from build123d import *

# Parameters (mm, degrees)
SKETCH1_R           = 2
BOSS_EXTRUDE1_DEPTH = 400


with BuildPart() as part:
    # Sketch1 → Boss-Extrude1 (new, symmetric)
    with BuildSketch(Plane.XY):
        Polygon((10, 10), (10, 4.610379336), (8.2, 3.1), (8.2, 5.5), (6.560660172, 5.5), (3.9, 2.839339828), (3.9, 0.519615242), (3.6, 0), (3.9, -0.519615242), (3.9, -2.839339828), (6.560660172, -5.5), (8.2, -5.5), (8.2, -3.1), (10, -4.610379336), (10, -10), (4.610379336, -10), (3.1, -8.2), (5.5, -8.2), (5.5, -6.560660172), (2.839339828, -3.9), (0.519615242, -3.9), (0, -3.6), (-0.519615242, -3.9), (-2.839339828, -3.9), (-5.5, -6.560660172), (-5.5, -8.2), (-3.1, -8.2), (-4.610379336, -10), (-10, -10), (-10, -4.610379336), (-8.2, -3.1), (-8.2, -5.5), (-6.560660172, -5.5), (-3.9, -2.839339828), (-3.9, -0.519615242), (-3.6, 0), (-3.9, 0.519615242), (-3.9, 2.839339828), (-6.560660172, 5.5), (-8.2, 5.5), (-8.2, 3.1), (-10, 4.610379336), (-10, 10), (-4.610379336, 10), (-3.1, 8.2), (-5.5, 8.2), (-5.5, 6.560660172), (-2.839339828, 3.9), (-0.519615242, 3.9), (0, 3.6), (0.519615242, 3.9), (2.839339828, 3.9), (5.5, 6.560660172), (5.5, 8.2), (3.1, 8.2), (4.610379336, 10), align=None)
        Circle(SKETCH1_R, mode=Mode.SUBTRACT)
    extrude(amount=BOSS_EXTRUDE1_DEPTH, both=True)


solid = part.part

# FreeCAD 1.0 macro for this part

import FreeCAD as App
import Part
import Sketcher

V = App.Vector
Q = App.Units.Quantity

doc = App.newDocument("Part")
body = doc.addObject("PartDesign::Body", "Body")

# Sketch on XY plane
sketch1 = body.newObject("Sketcher::SketchObject", "Sketch")
sketch1.AttachmentSupport = (doc.getObject("XY_Plane"), [""])
sketch1.MapMode = "FlatFace"
sketch1.addGeometry([
    Part.LineSegment(V(10, 4.6, 0), V(10, 10, 0)),  # 0
    Part.LineSegment(V(10, 10, 0), V(4.6, 10, 0)),  # 1
    Part.LineSegment(V(4.6, 10, 0), V(3.1, 8.2, 0)),  # 2
    Part.LineSegment(V(3.1, 8.2, 0), V(5.5, 8.2, 0)),  # 3
    Part.LineSegment(V(5.5, 8.2, 0), V(5.5, 6.6, 0)),  # 4
    Part.LineSegment(V(5.5, 6.6, 0), V(2.8, 3.9, 0)),  # 5
    Part.LineSegment(V(2.8, 3.9, 0), V(0.5, 3.9, 0)),  # 6
    Part.LineSegment(V(0.5, 3.9, 0), V(0, 3.6, 0)),  # 7
    Part.LineSegment(V(0, 3.6, 0), V(-0.5, 3.9, 0)),  # 8
    Part.LineSegment(V(-0.5, 3.9, 0), V(-2.8, 3.9, 0)),  # 9
    Part.LineSegment(V(-2.8, 3.9, 0), V(-5.5, 6.6, 0)),  # 10
    Part.LineSegment(V(-5.5, 6.6, 0), V(-5.5, 8.2, 0)),  # 11
    Part.LineSegment(V(-5.5, 8.2, 0), V(-3.1, 8.2, 0)),  # 12
    Part.LineSegment(V(-3.1, 8.2, 0), V(-4.6, 10, 0)),  # 13
    Part.LineSegment(V(-4.6, 10, 0), V(-10, 10, 0)),  # 14
    Part.LineSegment(V(-10, 10, 0), V(-10, 4.6, 0)),  # 15
    Part.LineSegment(V(-10, 4.6, 0), V(-8.2, 3.1, 0)),  # 16
    Part.LineSegment(V(-8.2, 3.1, 0), V(-8.2, 5.5, 0)),  # 17
    Part.LineSegment(V(-8.2, 5.5, 0), V(-6.6, 5.5, 0)),  # 18
    Part.LineSegment(V(-6.6, 5.5, 0), V(-3.9, 2.8, 0)),  # 19
    Part.LineSegment(V(-3.9, 2.8, 0), V(-3.9, 0.5, 0)),  # 20
    Part.LineSegment(V(-3.9, 0.5, 0), V(-3.6, 0, 0)),  # 21
    Part.LineSegment(V(-3.6, 0, 0), V(-3.9, -0.5, 0)),  # 22
    Part.LineSegment(V(-3.9, -0.5, 0), V(-3.9, -2.8, 0)),  # 23
    Part.LineSegment(V(-3.9, -2.8, 0), V(-6.6, -5.5, 0)),  # 24
    Part.LineSegment(V(-6.6, -5.5, 0), V(-8.2, -5.5, 0)),  # 25
    Part.LineSegment(V(-8.2, -5.5, 0), V(-8.2, -3.1, 0)),  # 26
    Part.LineSegment(V(-8.2, -3.1, 0), V(-10, -4.6, 0)),  # 27
    Part.LineSegment(V(-10, -4.6, 0), V(-10, -10, 0)),  # 28
    Part.LineSegment(V(-10, -10, 0), V(-4.6, -10, 0)),  # 29
    Part.LineSegment(V(-4.6, -10, 0), V(-3.1, -8.2, 0)),  # 30
    Part.LineSegment(V(-3.1, -8.2, 0), V(-5.5, -8.2, 0)),  # 31
    Part.LineSegment(V(-5.5, -8.2, 0), V(-5.5, -6.6, 0)),  # 32
    Part.LineSegment(V(-5.5, -6.6, 0), V(-2.8, -3.9, 0)),  # 33
    Part.LineSegment(V(-2.8, -3.9, 0), V(-0.5, -3.9, 0)),  # 34
    Part.LineSegment(V(-0.5, -3.9, 0), V(0, -3.6, 0)),  # 35
    Part.LineSegment(V(0, -3.6, 0), V(0.5, -3.9, 0)),  # 36
    Part.LineSegment(V(0.5, -3.9, 0), V(2.8, -3.9, 0)),  # 37
    Part.LineSegment(V(2.8, -3.9, 0), V(5.5, -6.6, 0)),  # 38
    Part.LineSegment(V(5.5, -6.6, 0), V(5.5, -8.2, 0)),  # 39
    Part.LineSegment(V(5.5, -8.2, 0), V(3.1, -8.2, 0)),  # 40
    Part.LineSegment(V(3.1, -8.2, 0), V(4.6, -10, 0)),  # 41
    Part.LineSegment(V(4.6, -10, 0), V(10, -10, 0)),  # 42
    Part.LineSegment(V(10, -10, 0), V(10, -4.6, 0)),  # 43
    Part.LineSegment(V(10, -4.6, 0), V(8.2, -3.1, 0)),  # 44
    Part.LineSegment(V(8.2, -3.1, 0), V(8.2, -5.5, 0)),  # 45
    Part.LineSegment(V(8.2, -5.5, 0), V(6.6, -5.5, 0)),  # 46
    Part.LineSegment(V(6.6, -5.5, 0), V(3.9, -2.8, 0)),  # 47
    Part.LineSegment(V(3.9, -2.8, 0), V(3.9, -0.5, 0)),  # 48
    Part.LineSegment(V(3.9, -0.5, 0), V(3.6, 0, 0)),  # 49
    Part.LineSegment(V(3.6, 0, 0), V(3.9, 0.5, 0)),  # 50
    Part.LineSegment(V(3.9, 0.5, 0), V(3.9, 2.8, 0)),  # 51
    Part.LineSegment(V(3.9, 2.8, 0), V(6.6, 5.5, 0)),  # 52
    Part.LineSegment(V(6.6, 5.5, 0), V(8.2, 5.5, 0)),  # 53
    Part.LineSegment(V(8.2, 5.5, 0), V(8.2, 3.1, 0)),  # 54
    Part.LineSegment(V(8.2, 3.1, 0), V(10, 4.6, 0)),  # 55
    Part.Circle(V(0, 0, 0), V(0, 0, 1), 2),  # 56
], False)
sketch1.addConstraint([
    Sketcher.Constraint("Coincident", 0, 2, 1, 1),
    Sketcher.Constraint("Coincident", 1, 2, 2, 1),
    Sketcher.Constraint("Coincident", 2, 2, 3, 1),
    Sketcher.Constraint("Coincident", 3, 2, 4, 1),
    Sketcher.Constraint("Coincident", 4, 2, 5, 1),
    Sketcher.Constraint("Coincident", 5, 2, 6, 1),
    Sketcher.Constraint("Coincident", 6, 2, 7, 1),
    Sketcher.Constraint("Coincident", 7, 2, 8, 1),
    Sketcher.Constraint("Coincident", 8, 2, 9, 1),
    Sketcher.Constraint("Coincident", 9, 2, 10, 1),
    Sketcher.Constraint("Coincident", 10, 2, 11, 1),
    Sketcher.Constraint("Coincident", 11, 2, 12, 1),
    Sketcher.Constraint("Coincident", 12, 2, 13, 1),
    Sketcher.Constraint("Coincident", 13, 2, 14, 1),
    Sketcher.Constraint("Coincident", 14, 2, 15, 1),
    Sketcher.Constraint("Coincident", 15, 2, 16, 1),
    Sketcher.Constraint("Coincident", 16, 2, 17, 1),
    Sketcher.Constraint("Coincident", 17, 2, 18, 1),
    Sketcher.Constraint("Coincident", 18, 2, 19, 1),
    Sketcher.Constraint("Coincident", 19, 2, 20, 1),
    Sketcher.Constraint("Coincident", 20, 2, 21, 1),
    Sketcher.Constraint("Coincident", 21, 2, 22, 1),
    Sketcher.Constraint("Coincident", 22, 2, 23, 1),
    Sketcher.Constraint("Coincident", 23, 2, 24, 1),
    Sketcher.Constraint("Coincident", 24, 2, 25, 1),
    Sketcher.Constraint("Coincident", 25, 2, 26, 1),
    Sketcher.Constraint("Coincident", 26, 2, 27, 1),
    Sketcher.Constraint("Coincident", 27, 2, 28, 1),
    Sketcher.Constraint("Coincident", 28, 2, 29, 1),
    Sketcher.Constraint("Coincident", 29, 2, 30, 1),
    Sketcher.Constraint("Coincident", 30, 2, 31, 1),
    Sketcher.Constraint("Coincident", 31, 2, 32, 1),
    Sketcher.Constraint("Coincident", 32, 2, 33, 1),
    Sketcher.Constraint("Coincident", 33, 2, 34, 1),
    Sketcher.Constraint("Coincident", 34, 2, 35, 1),
    Sketcher.Constraint("Coincident", 35, 2, 36, 1),
    Sketcher.Constraint("Coincident", 36, 2, 37, 1),
    Sketcher.Constraint("Coincident", 37, 2, 38, 1),
    Sketcher.Constraint("Coincident", 38, 2, 39, 1),
    Sketcher.Constraint("Coincident", 39, 2, 40, 1),
    Sketcher.Constraint("Coincident", 40, 2, 41, 1),
    Sketcher.Constraint("Coincident", 41, 2, 42, 1),
    Sketcher.Constraint("Coincident", 42, 2, 43, 1),
    Sketcher.Constraint("Coincident", 43, 2, 44, 1),
    Sketcher.Constraint("Coincident", 44, 2, 45, 1),
    Sketcher.Constraint("Coincident", 45, 2, 46, 1),
    Sketcher.Constraint("Coincident", 46, 2, 47, 1),
    Sketcher.Constraint("Coincident", 47, 2, 48, 1),
    Sketcher.Constraint("Coincident", 48, 2, 49, 1),
    Sketcher.Constraint("Coincident", 49, 2, 50, 1),
    Sketcher.Constraint("Coincident", 50, 2, 51, 1),
    Sketcher.Constraint("Coincident", 51, 2, 52, 1),
    Sketcher.Constraint("Coincident", 52, 2, 53, 1),
    Sketcher.Constraint("Coincident", 53, 2, 54, 1),
    Sketcher.Constraint("Coincident", 54, 2, 55, 1),
    Sketcher.Constraint("Coincident", 55, 2, 0, 1),
    Sketcher.Constraint("Vertical", 0),
    Sketcher.Constraint("Horizontal", 1),
    Sketcher.Constraint("Horizontal", 3),
    Sketcher.Constraint("Vertical", 4),
    Sketcher.Constraint("Horizontal", 6),
    Sketcher.Constraint("Horizontal", 9),
    Sketcher.Constraint("Vertical", 11),
    Sketcher.Constraint("Horizontal", 12),
    Sketcher.Constraint("Horizontal", 14),
    Sketcher.Constraint("Vertical", 15),
    Sketcher.Constraint("Vertical", 17),
    Sketcher.Constraint("Horizontal", 18),
    Sketcher.Constraint("Vertical", 20),
    Sketcher.Constraint("Vertical", 23),
    Sketcher.Constraint("Horizontal", 25),
    Sketcher.Constraint("Vertical", 26),
    Sketcher.Constraint("Vertical", 28),
    Sketcher.Constraint("Horizontal", 29),
    Sketcher.Constraint("Horizontal", 31),
    Sketcher.Constraint("Vertical", 32),
    Sketcher.Constraint("Horizontal", 34),
    Sketcher.Constraint("Horizontal", 37),
    Sketcher.Constraint("Vertical", 39),
    Sketcher.Constraint("Horizontal", 40),
    Sketcher.Constraint("Horizontal", 42),
    Sketcher.Constraint("Vertical", 43),
    Sketcher.Constraint("Vertical", 45),
    Sketcher.Constraint("Horizontal", 46),
    Sketcher.Constraint("Vertical", 48),
    Sketcher.Constraint("Vertical", 51),
    Sketcher.Constraint("Horizontal", 53),
    Sketcher.Constraint("Vertical", 54),
    Sketcher.Constraint("Coincident", 56, 3, -1, 1),
    Sketcher.Constraint("Symmetric", 0, 2, 28, 2, -1, 1),
    Sketcher.Constraint("Symmetric", 2, 2, 30, 2, -1, 1),
    Sketcher.Constraint("Symmetric", 4, 2, 32, 2, -1, 1),
    Sketcher.Constraint("Symmetric", 5, 2, 33, 2, -1, 1),
    Sketcher.Constraint("Symmetric", 7, 2, 35, 2, -1, 1),
    Sketcher.Constraint("Symmetric", 8, 2, 36, 2, -1, 1),
    Sketcher.Constraint("Symmetric", 10, 2, 38, 2, -1, 1),
    Sketcher.Constraint("Symmetric", 12, 2, 40, 2, -1, 1),
    Sketcher.Constraint("Symmetric", 13, 2, 41, 2, -1, 1),
    Sketcher.Constraint("Symmetric", 15, 2, 43, 2, -1, 1),
    Sketcher.Constraint("Symmetric", 16, 2, 44, 2, -1, 1),
    Sketcher.Constraint("Symmetric", 18, 2, 46, 2, -1, 1),
    Sketcher.Constraint("Symmetric", 19, 2, 47, 2, -1, 1),
    Sketcher.Constraint("Symmetric", 21, 2, 49, 2, -1, 1),
    Sketcher.Constraint("Symmetric", 22, 2, 50, 2, -1, 1),
    Sketcher.Constraint("Symmetric", 24, 2, 52, 2, -1, 1),
    Sketcher.Constraint("Symmetric", 26, 2, 54, 2, -1, 1),
    Sketcher.Constraint("Symmetric", 6, 2, 8, 2, -2),
    Sketcher.Constraint("Symmetric", 4, 2, 10, 2, -2),
    Sketcher.Constraint("Symmetric", 2, 2, 12, 2, -2),
    Sketcher.Constraint("Symmetric", 1, 2, 13, 2, -2),
    Sketcher.Constraint("Symmetric", 27, 2, 43, 2, -2),
    Sketcher.Constraint("Symmetric", 26, 2, 44, 2, -2),
    Sketcher.Constraint("Symmetric", 24, 2, 46, 2, -2),
    Sketcher.Constraint("Symmetric", 23, 2, 47, 2, -2),
    Sketcher.Constraint("PointOnObject", 7, 2, -2),
    Sketcher.Constraint("PointOnObject", 21, 2, -1),
    Sketcher.Constraint("Perpendicular", 5, 10),
    Sketcher.Constraint("Perpendicular", 2, 16),
    Sketcher.Constraint("Parallel", 10, 19),
    Sketcher.Constraint("Perpendicular", 7, 21),
    Sketcher.Constraint("Perpendicular", 8, 22),
    Sketcher.Constraint("Perpendicular", 19, 24),
    Sketcher.Constraint("Perpendicular", 16, 30),
    Sketcher.Constraint("Perpendicular", 21, 35),
    Sketcher.Constraint("Perpendicular", 33, 38),
    Sketcher.Constraint("Perpendicular", 35, 49),
    Sketcher.Constraint("Perpendicular", 47, 52),
    Sketcher.Constraint("Perpendicular", 41, 55),
    Sketcher.Constraint("Equal", 42, 0),
    Sketcher.Constraint("Equal", 53, 4),
    Sketcher.Constraint("Equal", 40, 17),
    Sketcher.Constraint("Equal", 37, 20),
    Sketcher.Constraint("Equal", 13, 16),
    Sketcher.Constraint("Equal", 10, 19),
    Sketcher.Constraint("Equal", 8, 21),
    Sketcher.Constraint("Diameter", 56, Q("4 mm")),
    Sketcher.Constraint("Angle", 2, Q("-130 deg")),
    Sketcher.Constraint("Angle", 7, Q("-150 deg")),
    Sketcher.Constraint("DistanceX", 3, 1, 3, 2, Q("2.4 mm")),
    Sketcher.Constraint("DistanceX", -1, 1, 0, 2, Q("10 mm")),
    Sketcher.Constraint("Distance", 7, Q("0.6 mm")),
    Sketcher.Constraint("DistanceX", -1, 1, 2, 2, Q("3.1 mm")),
    Sketcher.Constraint("DistanceY", -1, 1, 2, 2, Q("8.2 mm")),
    Sketcher.Constraint("DistanceY", -1, 1, 5, 2, Q("3.9 mm")),
    Sketcher.Constraint("DistanceX", 18, 1, 18, 2, Q("1.63934 mm")),
])
pad1 = body.newObject("PartDesign::Pad", "Pad")
pad1.Profile = sketch1
pad1.Length = 800
pad1.Midplane = True

doc.recompute()
